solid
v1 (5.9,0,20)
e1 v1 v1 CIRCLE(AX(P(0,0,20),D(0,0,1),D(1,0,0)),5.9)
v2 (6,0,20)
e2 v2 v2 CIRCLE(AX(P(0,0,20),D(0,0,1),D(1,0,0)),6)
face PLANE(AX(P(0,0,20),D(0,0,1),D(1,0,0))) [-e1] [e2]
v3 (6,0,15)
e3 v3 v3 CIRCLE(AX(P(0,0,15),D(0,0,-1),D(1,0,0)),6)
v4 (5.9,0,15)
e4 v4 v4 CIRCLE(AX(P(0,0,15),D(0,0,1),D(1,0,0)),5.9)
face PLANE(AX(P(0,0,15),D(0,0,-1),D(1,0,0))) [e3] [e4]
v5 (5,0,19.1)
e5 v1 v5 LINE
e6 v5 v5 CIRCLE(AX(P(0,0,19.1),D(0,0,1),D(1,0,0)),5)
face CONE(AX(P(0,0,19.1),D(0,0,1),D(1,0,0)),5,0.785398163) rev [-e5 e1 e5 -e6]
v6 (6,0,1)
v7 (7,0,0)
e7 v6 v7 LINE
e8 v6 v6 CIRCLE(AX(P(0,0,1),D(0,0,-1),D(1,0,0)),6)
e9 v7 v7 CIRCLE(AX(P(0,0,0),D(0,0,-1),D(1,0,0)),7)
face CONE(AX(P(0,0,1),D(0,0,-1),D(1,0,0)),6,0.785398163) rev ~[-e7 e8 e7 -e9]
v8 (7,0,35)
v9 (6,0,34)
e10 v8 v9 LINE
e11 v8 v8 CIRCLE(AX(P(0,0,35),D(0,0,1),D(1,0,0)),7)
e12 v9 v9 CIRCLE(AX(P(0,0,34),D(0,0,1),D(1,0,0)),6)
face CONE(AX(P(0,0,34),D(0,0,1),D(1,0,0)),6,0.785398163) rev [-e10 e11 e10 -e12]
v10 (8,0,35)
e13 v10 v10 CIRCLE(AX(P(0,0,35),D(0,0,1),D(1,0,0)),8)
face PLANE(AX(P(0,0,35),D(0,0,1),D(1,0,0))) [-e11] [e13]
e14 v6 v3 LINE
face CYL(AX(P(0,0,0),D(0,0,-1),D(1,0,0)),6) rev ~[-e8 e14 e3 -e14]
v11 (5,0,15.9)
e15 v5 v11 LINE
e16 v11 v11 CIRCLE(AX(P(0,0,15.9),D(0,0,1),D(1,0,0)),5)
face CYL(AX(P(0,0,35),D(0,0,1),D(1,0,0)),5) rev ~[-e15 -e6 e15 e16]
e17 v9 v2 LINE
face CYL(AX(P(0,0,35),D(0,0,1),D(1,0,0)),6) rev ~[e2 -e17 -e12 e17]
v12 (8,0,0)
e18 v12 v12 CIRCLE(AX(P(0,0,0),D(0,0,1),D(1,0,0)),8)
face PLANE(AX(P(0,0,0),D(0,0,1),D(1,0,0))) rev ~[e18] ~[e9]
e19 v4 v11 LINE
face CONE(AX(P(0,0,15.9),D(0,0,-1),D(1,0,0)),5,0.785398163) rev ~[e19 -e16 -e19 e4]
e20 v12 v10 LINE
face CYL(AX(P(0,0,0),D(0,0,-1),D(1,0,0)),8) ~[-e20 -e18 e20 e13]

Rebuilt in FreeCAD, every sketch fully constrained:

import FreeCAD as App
import Part
import Sketcher
from FreeCAD import Vector


def edges_at(feature, points):
    """Names of the edges that pass closest to the given points."""
    edges = feature.Shape.Edges
    near = lambda p: min(range(len(edges)), key=lambda i: edges[i].distToShape(Part.Vertex(*p))[0])
    return sorted({f"Edge{near(p) + 1}" for p in points})

doc = App.newDocument("Part")
body = doc.addObject("PartDesign::Body", "Body")

# Sketch on XY plane
sketch1 = body.newObject("Sketcher::SketchObject", "Sketch")
sketch1.AttachmentSupport = (doc.getObject("XY_Plane"), [""])
sketch1.MapMode = "FlatFace"
sketch1.addGeometry(Part.Circle(Vector(0, 0, 0), Vector(0, 0, 1), 8), False)
sketch1.addConstraint(Sketcher.Constraint("Coincident", 0, 3, -1, 1))
sketch1.addConstraint(Sketcher.Constraint("Diameter", 0, 16.0))
pad1 = body.newObject("PartDesign::Pad", "Pad")
pad1.Profile = sketch1
pad1.Length = 35

# Sketch on XY plane
sketch2 = body.newObject("Sketcher::SketchObject", "Sketch001")
sketch2.AttachmentSupport = (doc.getObject("XY_Plane"), [""])
sketch2.MapMode = "FlatFace"
sketch2.AttachmentOffset = App.Placement(Vector(0, 0, 35), App.Rotation())
sketch2.addGeometry(Part.Circle(Vector(0, 0, 0), Vector(0, 0, 1), 5), False)
sketch2.addConstraint(Sketcher.Constraint("Coincident", 0, 3, -1, 1))
sketch2.addConstraint(Sketcher.Constraint("Diameter", 0, 10.0))
pocket1 = body.newObject("PartDesign::Pocket", "Pocket")
pocket1.Profile = sketch2
pocket1.Type = "ThroughAll"

# Sketch on XY plane
sketch3 = body.newObject("Sketcher::SketchObject", "Sketch002")
sketch3.AttachmentSupport = (doc.getObject("XY_Plane"), [""])
sketch3.MapMode = "FlatFace"
sketch3.AttachmentOffset = App.Placement(Vector(0, 0, 35), App.Rotation())
sketch3.addGeometry(Part.Circle(Vector(0, 0, 0), Vector(0, 0, 1), 6), False)
sketch3.addConstraint(Sketcher.Constraint("Coincident", 0, 3, -1, 1))
sketch3.addConstraint(Sketcher.Constraint("Diameter", 0, 12.0))
pocket2 = body.newObject("PartDesign::Pocket", "Pocket001")
pocket2.Profile = sketch3
pocket2.Length = 15

# Sketch on XY plane
sketch4 = body.newObject("Sketcher::SketchObject", "Sketch003")
sketch4.AttachmentSupport = (doc.getObject("XY_Plane"), [""])
sketch4.MapMode = "FlatFace"
sketch4.addGeometry(Part.Circle(Vector(0, 0, 0), Vector(0, 0, 1), 6), False)
sketch4.addConstraint(Sketcher.Constraint("Coincident", 0, 3, -1, 1))
sketch4.addConstraint(Sketcher.Constraint("Diameter", 0, 12.0))
pocket3 = body.newObject("PartDesign::Pocket", "Pocket002")
pocket3.Profile = sketch4
pocket3.Length = 15
pocket3.Reversed = True
doc.recompute()

chamfer = body.newObject("PartDesign::Chamfer", "Chamfer")
chamfer.Base = (pocket3, edges_at(pocket3, [(-5, 0, 15), (-5, 0, 20)]))
chamfer.Size = 0.9
doc.recompute()

chamfer2 = body.newObject("PartDesign::Chamfer", "Chamfer001")
chamfer2.Base = (chamfer, edges_at(chamfer, [(-6, 0, 0), (-6, 0, 35)]))
chamfer2.Size = 1

doc.recompute()
